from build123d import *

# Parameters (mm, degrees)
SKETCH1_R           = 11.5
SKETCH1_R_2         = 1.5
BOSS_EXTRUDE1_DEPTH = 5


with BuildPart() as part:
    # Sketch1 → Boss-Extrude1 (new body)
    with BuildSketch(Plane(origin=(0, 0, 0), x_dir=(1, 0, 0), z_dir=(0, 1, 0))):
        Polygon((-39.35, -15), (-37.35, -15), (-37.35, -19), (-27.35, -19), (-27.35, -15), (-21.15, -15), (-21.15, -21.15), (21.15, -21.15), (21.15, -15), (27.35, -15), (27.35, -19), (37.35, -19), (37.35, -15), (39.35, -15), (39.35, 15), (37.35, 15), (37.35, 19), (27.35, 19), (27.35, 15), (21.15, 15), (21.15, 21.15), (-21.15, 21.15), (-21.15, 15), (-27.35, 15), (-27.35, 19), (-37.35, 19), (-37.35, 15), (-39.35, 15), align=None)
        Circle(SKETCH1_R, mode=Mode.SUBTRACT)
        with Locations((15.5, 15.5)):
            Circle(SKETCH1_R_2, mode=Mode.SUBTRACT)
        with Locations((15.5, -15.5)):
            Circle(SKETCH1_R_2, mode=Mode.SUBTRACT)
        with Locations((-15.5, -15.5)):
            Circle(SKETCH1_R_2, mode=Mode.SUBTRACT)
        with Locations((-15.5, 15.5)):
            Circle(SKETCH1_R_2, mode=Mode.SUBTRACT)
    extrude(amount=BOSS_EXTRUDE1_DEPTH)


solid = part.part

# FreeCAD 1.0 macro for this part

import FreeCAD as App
import Part
import Sketcher

doc = App.newDocument("Part")
body = doc.addObject("PartDesign::Body", "Body")

sketch1 = doc.addObject("Sketcher::SketchObject", "Sketch")
body.addObject(sketch1)
sketch1.AttachmentSupport = (doc.XZ_Plane, [""])
sketch1.MapMode = "FlatFace"
sketch1.addGeometry([
    Part.LineSegment(App.Vector(-39.35, 15, 0), App.Vector(-37.35, 15, 0)),
    Part.LineSegment(App.Vector(-37.35, 15, 0), App.Vector(-37.35, 19, 0)),
    Part.LineSegment(App.Vector(-37.35, 19, 0), App.Vector(-27.35, 19, 0)),
    Part.LineSegment(App.Vector(-27.35, 19, 0), App.Vector(-27.35, 15, 0)),
    Part.LineSegment(App.Vector(-27.35, 15, 0), App.Vector(-21.15, 15, 0)),
    Part.LineSegment(App.Vector(-21.15, 15, 0), App.Vector(-21.15, 21.15, 0)),
    Part.LineSegment(App.Vector(-21.15, 21.15, 0), App.Vector(21.15, 21.15, 0)),
    Part.LineSegment(App.Vector(21.15, 21.15, 0), App.Vector(21.15, 15, 0)),
    Part.LineSegment(App.Vector(21.15, 15, 0), App.Vector(27.35, 15, 0)),
    Part.LineSegment(App.Vector(27.35, 15, 0), App.Vector(27.35, 19, 0)),
    Part.LineSegment(App.Vector(27.35, 19, 0), App.Vector(37.35, 19, 0)),
    Part.LineSegment(App.Vector(37.35, 19, 0), App.Vector(37.35, 15, 0)),
    Part.LineSegment(App.Vector(37.35, 15, 0), App.Vector(39.35, 15, 0)),
    Part.LineSegment(App.Vector(39.35, 15, 0), App.Vector(39.35, -15, 0)),
    Part.LineSegment(App.Vector(39.35, -15, 0), App.Vector(37.35, -15, 0)),
    Part.LineSegment(App.Vector(37.35, -15, 0), App.Vector(37.35, -19, 0)),
    Part.LineSegment(App.Vector(37.35, -19, 0), App.Vector(27.35, -19, 0)),
    Part.LineSegment(App.Vector(27.35, -19, 0), App.Vector(27.35, -15, 0)),
    Part.LineSegment(App.Vector(27.35, -15, 0), App.Vector(21.15, -15, 0)),
    Part.LineSegment(App.Vector(21.15, -15, 0), App.Vector(21.15, -21.15, 0)),
    Part.LineSegment(App.Vector(21.15, -21.15, 0), App.Vector(-21.15, -21.15, 0)),
    Part.LineSegment(App.Vector(-21.15, -21.15, 0), App.Vector(-21.15, -15, 0)),
    Part.LineSegment(App.Vector(-21.15, -15, 0), App.Vector(-27.35, -15, 0)),
    Part.LineSegment(App.Vector(-27.35, -15, 0), App.Vector(-27.35, -19, 0)),
    Part.LineSegment(App.Vector(-27.35, -19, 0), App.Vector(-37.35, -19, 0)),
    Part.LineSegment(App.Vector(-37.35, -19, 0), App.Vector(-37.35, -15, 0)),
    Part.LineSegment(App.Vector(-37.35, -15, 0), App.Vector(-39.35, -15, 0)),
    Part.LineSegment(App.Vector(-39.35, -15, 0), App.Vector(-39.35, 15, 0)),
    Part.Circle(App.Vector(-15.5, 15.5, 0), App.Vector(0, 0, 1), 1.5),
    Part.Circle(App.Vector(15.5, 15.5, 0), App.Vector(0, 0, 1), 1.5),
    Part.Circle(App.Vector(-15.5, -15.5, 0), App.Vector(0, 0, 1), 1.5),
    Part.Circle(App.Vector(0, 0, 0), App.Vector(0, 0, 1), 11.5),
    Part.Circle(App.Vector(15.5, -15.5, 0), App.Vector(0, 0, 1), 1.5),
], False)
sketch1.addConstraint([
    Sketcher.Constraint("Coincident", 0, 2, 1, 1),
    Sketcher.Constraint("Coincident", 1, 2, 2, 1),
    Sketcher.Constraint("Coincident", 2, 2, 3, 1),
    Sketcher.Constraint("Coincident", 3, 2, 4, 1),
    Sketcher.Constraint("Coincident", 4, 2, 5, 1),
    Sketcher.Constraint("Coincident", 5, 2, 6, 1),
    Sketcher.Constraint("Coincident", 6, 2, 7, 1),
    Sketcher.Constraint("Coincident", 7, 2, 8, 1),
    Sketcher.Constraint("Coincident", 8, 2, 9, 1),
    Sketcher.Constraint("Coincident", 9, 2, 10, 1),
    Sketcher.Constraint("Coincident", 10, 2, 11, 1),
    Sketcher.Constraint("Coincident", 11, 2, 12, 1),
    Sketcher.Constraint("Coincident", 12, 2, 13, 1),
    Sketcher.Constraint("Coincident", 13, 2, 14, 1),
    Sketcher.Constraint("Coincident", 14, 2, 15, 1),
    Sketcher.Constraint("Coincident", 15, 2, 16, 1),
    Sketcher.Constraint("Coincident", 16, 2, 17, 1),
    Sketcher.Constraint("Coincident", 17, 2, 18, 1),
    Sketcher.Constraint("Coincident", 18, 2, 19, 1),
    Sketcher.Constraint("Coincident", 19, 2, 20, 1),
    Sketcher.Constraint("Coincident", 20, 2, 21, 1),
    Sketcher.Constraint("Coincident", 21, 2, 22, 1),
    Sketcher.Constraint("Coincident", 22, 2, 23, 1),
    Sketcher.Constraint("Coincident", 23, 2, 24, 1),
    Sketcher.Constraint("Coincident", 24, 2, 25, 1),
    Sketcher.Constraint("Coincident", 25, 2, 26, 1),
    Sketcher.Constraint("Coincident", 26, 2, 27, 1),
    Sketcher.Constraint("Coincident", 27, 2, 0, 1),
    Sketcher.Constraint("Horizontal", 0),
    Sketcher.Constraint("Vertical", 1),
    Sketcher.Constraint("Horizontal", 2),
    Sketcher.Constraint("Vertical", 3),
    Sketcher.Constraint("Horizontal", 4),
    Sketcher.Constraint("Vertical", 5),
    Sketcher.Constraint("Horizontal", 6),
    Sketcher.Constraint("Vertical", 7),
    Sketcher.Constraint("Horizontal", 8),
    Sketcher.Constraint("Vertical", 9),
    Sketcher.Constraint("Horizontal", 10),
    Sketcher.Constraint("Vertical", 11),
    Sketcher.Constraint("Horizontal", 12),
    Sketcher.Constraint("Vertical", 13),
    Sketcher.Constraint("Horizontal", 14),
    Sketcher.Constraint("Vertical", 15),
    Sketcher.Constraint("Horizontal", 16),
    Sketcher.Constraint("Vertical", 17),
    Sketcher.Constraint("Horizontal", 18),
    Sketcher.Constraint("Vertical", 19),
    Sketcher.Constraint("Horizontal", 20),
    Sketcher.Constraint("Vertical", 21),
    Sketcher.Constraint("Horizontal", 22),
    Sketcher.Constraint("Vertical", 23),
    Sketcher.Constraint("Horizontal", 24),
    Sketcher.Constraint("Vertical", 25),
    Sketcher.Constraint("Horizontal", 26),
    Sketcher.Constraint("Vertical", 27),
    Sketcher.Constraint("Coincident", 31, 3, -1, 1),
    Sketcher.Constraint("Equal", 28, 29),
    Sketcher.Constraint("Equal", 29, 30),
    Sketcher.Constraint("Equal", 30, 32),
    Sketcher.Constraint("Symmetric", 29, 3, 30, 3, -1, 1),
    Sketcher.Constraint("Symmetric", 28, 3, 32, 3, -1, 1),
    Sketcher.Constraint("Symmetric", 0, 2, 14, 2, -1, 1),
    Sketcher.Constraint("Symmetric", 2, 2, 16, 2, -1, 1),
    Sketcher.Constraint("Symmetric", 4, 2, 18, 2, -1, 1),
    Sketcher.Constraint("Symmetric", 6, 2, 20, 2, -1, 1),
    Sketcher.Constraint("Symmetric", 8, 2, 22, 2, -1, 1),
    Sketcher.Constraint("Symmetric", 10, 2, 24, 2, -1, 1),
    Sketcher.Constraint("Symmetric", 12, 2, 26, 2, -1, 1),
    Sketcher.Constraint("Symmetric", 28, 3, 29, 3, -2),
    Sketcher.Constraint("Symmetric", 4, 2, 7, 2, -2),
    Sketcher.Constraint("Symmetric", 2, 2, 9, 2, -2),
    Sketcher.Constraint("Symmetric", 0, 2, 11, 2, -2),
    Sketcher.Constraint("Horizontal", 0, 2, 3, 2),
    Sketcher.Constraint("Diameter", 28, 3.0),
    Sketcher.Constraint("Diameter", 31, 23.0),
    Sketcher.Constraint("DistanceX", 0, 1, 0, 2, 2.0),
    Sketcher.Constraint("DistanceX", 2, 1, 2, 2, 10.0),
    Sketcher.Constraint("DistanceY", 1, 1, 1, 2, 4.0),
    Sketcher.Constraint("DistanceY", 13, 2, 13, 1, 30.0),
    Sketcher.Constraint("DistanceX", 4, 1, 4, 2, 6.2),
    Sketcher.Constraint("DistanceX", 6, 1, 6, 2, 42.3),
    Sketcher.Constraint("DistanceX", 28, 3, 29, 3, 31.0),
    Sketcher.Constraint("DistanceY", 30, 3, 28, 3, 31.0),
    Sketcher.Constraint("DistanceY", 5, 1, 5, 2, 6.15),
])
pad1 = doc.addObject("PartDesign::Pad", "Pad")
body.addObject(pad1)
pad1.Profile = sketch1
pad1.Length = 5
pad1.Reversed = True

doc.recompute()
